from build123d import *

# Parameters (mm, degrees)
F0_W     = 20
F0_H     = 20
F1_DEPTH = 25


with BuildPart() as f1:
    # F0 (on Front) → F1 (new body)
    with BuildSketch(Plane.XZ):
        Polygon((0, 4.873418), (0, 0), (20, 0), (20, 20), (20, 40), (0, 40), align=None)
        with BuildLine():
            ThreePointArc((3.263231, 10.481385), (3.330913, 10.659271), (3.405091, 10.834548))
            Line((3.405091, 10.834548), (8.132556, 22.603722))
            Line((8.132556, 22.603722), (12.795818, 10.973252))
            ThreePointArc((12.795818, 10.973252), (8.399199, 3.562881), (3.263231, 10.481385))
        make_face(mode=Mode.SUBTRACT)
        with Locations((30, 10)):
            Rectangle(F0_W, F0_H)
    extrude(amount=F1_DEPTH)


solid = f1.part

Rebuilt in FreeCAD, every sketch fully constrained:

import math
import FreeCAD as App
import Part
import Sketcher


def add_polygon(sketch, points):
    """Adds a closed chain of lines whose ends are joined by coincident constraints."""
    first, n = sketch.GeometryCount, len(points)
    for a, b in zip(points, points[1:] + points[:1]):
        sketch.addGeometry(Part.LineSegment(App.Vector(*a, 0), App.Vector(*b, 0)), False)
    for i in range(n):
        sketch.addConstraint(Sketcher.Constraint("Coincident", first + i, 2, first + (i + 1) % n, 1))

doc = App.newDocument("Part")
body = doc.addObject("PartDesign::Body", "Body")

sketch1 = doc.addObject("Sketcher::SketchObject", "Sketch")
body.addObject(sketch1)
sketch1.AttachmentSupport = (doc.XZ_Plane, [""])
sketch1.MapMode = "FlatFace"
add_polygon(sketch1, [(0, 0), (40, 0), (40, 20), (20, 20), (20, 40), (0, 40)])
sketch1.addGeometry(Part.ArcOfCircle(Part.Circle(App.Vector(8.132555, 8.730538, 0), App.Vector(0, 0, 1), 5.174532), math.radians(160.223108), math.radians(385.684403)), False)
sketch1.addGeometry(Part.ArcOfCircle(Part.Circle(App.Vector(8.132659, 8.730486, 0), App.Vector(0, 0, 1), 5.174647), math.radians(156.007956), math.radians(160.222946)), False)
sketch1.addGeometry(Part.LineSegment(App.Vector(3.405091, 10.834548, 0), App.Vector(8.132556, 22.603722, 0)), False)
sketch1.addGeometry(Part.LineSegment(App.Vector(8.132556, 22.603722, 0), App.Vector(12.795818, 10.973252, 0)), False)
sketch1.addConstraint([
    Sketcher.Constraint("Coincident", 6, 1, 7, 2),
    Sketcher.Constraint("Coincident", 7, 1, 8, 1),
    Sketcher.Constraint("Coincident", 8, 2, 9, 1),
    Sketcher.Constraint("Coincident", 9, 2, 6, 2),
    Sketcher.Constraint("Horizontal", 0),
    Sketcher.Constraint("Vertical", 1),
    Sketcher.Constraint("Horizontal", 2),
    Sketcher.Constraint("Vertical", 3),
    Sketcher.Constraint("Horizontal", 4),
    Sketcher.Constraint("Vertical", 5),
    Sketcher.Constraint("Coincident", 5, 2, -1, 1),
    Sketcher.Constraint("Vertical", 6, 3, 8, 2),
    Sketcher.Constraint("Equal", 2, 4),
    Sketcher.Constraint("Equal", 4, 1),
    Sketcher.Constraint("Equal", 1, 3),
    Sketcher.Constraint("DistanceX", 0, 1, 0, 2, 40.0),
    Sketcher.Constraint("Radius", 6, 5.174532),
    Sketcher.Constraint("Radius", 7, 5.174647),
    Sketcher.Constraint("DistanceY", 7, 3, 6, 1, 1.750899),
    Sketcher.Constraint("DistanceY", -1, 1, 6, 3, 8.730538),
    Sketcher.Constraint("DistanceX", -1, 1, 7, 3, 8.132659),
    Sketcher.Constraint("DistanceX", -1, 1, 7, 1, 3.405091),
    Sketcher.Constraint("DistanceY", -1, 1, 7, 1, 10.834548),
    Sketcher.Constraint("DistanceX", 7, 3, 9, 2, 4.663159),
    Sketcher.Constraint("Distance", 8, 12.683153),
])
pad1 = doc.addObject("PartDesign::Pad", "Pad")
body.addObject(pad1)
pad1.Profile = sketch1
pad1.Length = 25

doc.recompute()
